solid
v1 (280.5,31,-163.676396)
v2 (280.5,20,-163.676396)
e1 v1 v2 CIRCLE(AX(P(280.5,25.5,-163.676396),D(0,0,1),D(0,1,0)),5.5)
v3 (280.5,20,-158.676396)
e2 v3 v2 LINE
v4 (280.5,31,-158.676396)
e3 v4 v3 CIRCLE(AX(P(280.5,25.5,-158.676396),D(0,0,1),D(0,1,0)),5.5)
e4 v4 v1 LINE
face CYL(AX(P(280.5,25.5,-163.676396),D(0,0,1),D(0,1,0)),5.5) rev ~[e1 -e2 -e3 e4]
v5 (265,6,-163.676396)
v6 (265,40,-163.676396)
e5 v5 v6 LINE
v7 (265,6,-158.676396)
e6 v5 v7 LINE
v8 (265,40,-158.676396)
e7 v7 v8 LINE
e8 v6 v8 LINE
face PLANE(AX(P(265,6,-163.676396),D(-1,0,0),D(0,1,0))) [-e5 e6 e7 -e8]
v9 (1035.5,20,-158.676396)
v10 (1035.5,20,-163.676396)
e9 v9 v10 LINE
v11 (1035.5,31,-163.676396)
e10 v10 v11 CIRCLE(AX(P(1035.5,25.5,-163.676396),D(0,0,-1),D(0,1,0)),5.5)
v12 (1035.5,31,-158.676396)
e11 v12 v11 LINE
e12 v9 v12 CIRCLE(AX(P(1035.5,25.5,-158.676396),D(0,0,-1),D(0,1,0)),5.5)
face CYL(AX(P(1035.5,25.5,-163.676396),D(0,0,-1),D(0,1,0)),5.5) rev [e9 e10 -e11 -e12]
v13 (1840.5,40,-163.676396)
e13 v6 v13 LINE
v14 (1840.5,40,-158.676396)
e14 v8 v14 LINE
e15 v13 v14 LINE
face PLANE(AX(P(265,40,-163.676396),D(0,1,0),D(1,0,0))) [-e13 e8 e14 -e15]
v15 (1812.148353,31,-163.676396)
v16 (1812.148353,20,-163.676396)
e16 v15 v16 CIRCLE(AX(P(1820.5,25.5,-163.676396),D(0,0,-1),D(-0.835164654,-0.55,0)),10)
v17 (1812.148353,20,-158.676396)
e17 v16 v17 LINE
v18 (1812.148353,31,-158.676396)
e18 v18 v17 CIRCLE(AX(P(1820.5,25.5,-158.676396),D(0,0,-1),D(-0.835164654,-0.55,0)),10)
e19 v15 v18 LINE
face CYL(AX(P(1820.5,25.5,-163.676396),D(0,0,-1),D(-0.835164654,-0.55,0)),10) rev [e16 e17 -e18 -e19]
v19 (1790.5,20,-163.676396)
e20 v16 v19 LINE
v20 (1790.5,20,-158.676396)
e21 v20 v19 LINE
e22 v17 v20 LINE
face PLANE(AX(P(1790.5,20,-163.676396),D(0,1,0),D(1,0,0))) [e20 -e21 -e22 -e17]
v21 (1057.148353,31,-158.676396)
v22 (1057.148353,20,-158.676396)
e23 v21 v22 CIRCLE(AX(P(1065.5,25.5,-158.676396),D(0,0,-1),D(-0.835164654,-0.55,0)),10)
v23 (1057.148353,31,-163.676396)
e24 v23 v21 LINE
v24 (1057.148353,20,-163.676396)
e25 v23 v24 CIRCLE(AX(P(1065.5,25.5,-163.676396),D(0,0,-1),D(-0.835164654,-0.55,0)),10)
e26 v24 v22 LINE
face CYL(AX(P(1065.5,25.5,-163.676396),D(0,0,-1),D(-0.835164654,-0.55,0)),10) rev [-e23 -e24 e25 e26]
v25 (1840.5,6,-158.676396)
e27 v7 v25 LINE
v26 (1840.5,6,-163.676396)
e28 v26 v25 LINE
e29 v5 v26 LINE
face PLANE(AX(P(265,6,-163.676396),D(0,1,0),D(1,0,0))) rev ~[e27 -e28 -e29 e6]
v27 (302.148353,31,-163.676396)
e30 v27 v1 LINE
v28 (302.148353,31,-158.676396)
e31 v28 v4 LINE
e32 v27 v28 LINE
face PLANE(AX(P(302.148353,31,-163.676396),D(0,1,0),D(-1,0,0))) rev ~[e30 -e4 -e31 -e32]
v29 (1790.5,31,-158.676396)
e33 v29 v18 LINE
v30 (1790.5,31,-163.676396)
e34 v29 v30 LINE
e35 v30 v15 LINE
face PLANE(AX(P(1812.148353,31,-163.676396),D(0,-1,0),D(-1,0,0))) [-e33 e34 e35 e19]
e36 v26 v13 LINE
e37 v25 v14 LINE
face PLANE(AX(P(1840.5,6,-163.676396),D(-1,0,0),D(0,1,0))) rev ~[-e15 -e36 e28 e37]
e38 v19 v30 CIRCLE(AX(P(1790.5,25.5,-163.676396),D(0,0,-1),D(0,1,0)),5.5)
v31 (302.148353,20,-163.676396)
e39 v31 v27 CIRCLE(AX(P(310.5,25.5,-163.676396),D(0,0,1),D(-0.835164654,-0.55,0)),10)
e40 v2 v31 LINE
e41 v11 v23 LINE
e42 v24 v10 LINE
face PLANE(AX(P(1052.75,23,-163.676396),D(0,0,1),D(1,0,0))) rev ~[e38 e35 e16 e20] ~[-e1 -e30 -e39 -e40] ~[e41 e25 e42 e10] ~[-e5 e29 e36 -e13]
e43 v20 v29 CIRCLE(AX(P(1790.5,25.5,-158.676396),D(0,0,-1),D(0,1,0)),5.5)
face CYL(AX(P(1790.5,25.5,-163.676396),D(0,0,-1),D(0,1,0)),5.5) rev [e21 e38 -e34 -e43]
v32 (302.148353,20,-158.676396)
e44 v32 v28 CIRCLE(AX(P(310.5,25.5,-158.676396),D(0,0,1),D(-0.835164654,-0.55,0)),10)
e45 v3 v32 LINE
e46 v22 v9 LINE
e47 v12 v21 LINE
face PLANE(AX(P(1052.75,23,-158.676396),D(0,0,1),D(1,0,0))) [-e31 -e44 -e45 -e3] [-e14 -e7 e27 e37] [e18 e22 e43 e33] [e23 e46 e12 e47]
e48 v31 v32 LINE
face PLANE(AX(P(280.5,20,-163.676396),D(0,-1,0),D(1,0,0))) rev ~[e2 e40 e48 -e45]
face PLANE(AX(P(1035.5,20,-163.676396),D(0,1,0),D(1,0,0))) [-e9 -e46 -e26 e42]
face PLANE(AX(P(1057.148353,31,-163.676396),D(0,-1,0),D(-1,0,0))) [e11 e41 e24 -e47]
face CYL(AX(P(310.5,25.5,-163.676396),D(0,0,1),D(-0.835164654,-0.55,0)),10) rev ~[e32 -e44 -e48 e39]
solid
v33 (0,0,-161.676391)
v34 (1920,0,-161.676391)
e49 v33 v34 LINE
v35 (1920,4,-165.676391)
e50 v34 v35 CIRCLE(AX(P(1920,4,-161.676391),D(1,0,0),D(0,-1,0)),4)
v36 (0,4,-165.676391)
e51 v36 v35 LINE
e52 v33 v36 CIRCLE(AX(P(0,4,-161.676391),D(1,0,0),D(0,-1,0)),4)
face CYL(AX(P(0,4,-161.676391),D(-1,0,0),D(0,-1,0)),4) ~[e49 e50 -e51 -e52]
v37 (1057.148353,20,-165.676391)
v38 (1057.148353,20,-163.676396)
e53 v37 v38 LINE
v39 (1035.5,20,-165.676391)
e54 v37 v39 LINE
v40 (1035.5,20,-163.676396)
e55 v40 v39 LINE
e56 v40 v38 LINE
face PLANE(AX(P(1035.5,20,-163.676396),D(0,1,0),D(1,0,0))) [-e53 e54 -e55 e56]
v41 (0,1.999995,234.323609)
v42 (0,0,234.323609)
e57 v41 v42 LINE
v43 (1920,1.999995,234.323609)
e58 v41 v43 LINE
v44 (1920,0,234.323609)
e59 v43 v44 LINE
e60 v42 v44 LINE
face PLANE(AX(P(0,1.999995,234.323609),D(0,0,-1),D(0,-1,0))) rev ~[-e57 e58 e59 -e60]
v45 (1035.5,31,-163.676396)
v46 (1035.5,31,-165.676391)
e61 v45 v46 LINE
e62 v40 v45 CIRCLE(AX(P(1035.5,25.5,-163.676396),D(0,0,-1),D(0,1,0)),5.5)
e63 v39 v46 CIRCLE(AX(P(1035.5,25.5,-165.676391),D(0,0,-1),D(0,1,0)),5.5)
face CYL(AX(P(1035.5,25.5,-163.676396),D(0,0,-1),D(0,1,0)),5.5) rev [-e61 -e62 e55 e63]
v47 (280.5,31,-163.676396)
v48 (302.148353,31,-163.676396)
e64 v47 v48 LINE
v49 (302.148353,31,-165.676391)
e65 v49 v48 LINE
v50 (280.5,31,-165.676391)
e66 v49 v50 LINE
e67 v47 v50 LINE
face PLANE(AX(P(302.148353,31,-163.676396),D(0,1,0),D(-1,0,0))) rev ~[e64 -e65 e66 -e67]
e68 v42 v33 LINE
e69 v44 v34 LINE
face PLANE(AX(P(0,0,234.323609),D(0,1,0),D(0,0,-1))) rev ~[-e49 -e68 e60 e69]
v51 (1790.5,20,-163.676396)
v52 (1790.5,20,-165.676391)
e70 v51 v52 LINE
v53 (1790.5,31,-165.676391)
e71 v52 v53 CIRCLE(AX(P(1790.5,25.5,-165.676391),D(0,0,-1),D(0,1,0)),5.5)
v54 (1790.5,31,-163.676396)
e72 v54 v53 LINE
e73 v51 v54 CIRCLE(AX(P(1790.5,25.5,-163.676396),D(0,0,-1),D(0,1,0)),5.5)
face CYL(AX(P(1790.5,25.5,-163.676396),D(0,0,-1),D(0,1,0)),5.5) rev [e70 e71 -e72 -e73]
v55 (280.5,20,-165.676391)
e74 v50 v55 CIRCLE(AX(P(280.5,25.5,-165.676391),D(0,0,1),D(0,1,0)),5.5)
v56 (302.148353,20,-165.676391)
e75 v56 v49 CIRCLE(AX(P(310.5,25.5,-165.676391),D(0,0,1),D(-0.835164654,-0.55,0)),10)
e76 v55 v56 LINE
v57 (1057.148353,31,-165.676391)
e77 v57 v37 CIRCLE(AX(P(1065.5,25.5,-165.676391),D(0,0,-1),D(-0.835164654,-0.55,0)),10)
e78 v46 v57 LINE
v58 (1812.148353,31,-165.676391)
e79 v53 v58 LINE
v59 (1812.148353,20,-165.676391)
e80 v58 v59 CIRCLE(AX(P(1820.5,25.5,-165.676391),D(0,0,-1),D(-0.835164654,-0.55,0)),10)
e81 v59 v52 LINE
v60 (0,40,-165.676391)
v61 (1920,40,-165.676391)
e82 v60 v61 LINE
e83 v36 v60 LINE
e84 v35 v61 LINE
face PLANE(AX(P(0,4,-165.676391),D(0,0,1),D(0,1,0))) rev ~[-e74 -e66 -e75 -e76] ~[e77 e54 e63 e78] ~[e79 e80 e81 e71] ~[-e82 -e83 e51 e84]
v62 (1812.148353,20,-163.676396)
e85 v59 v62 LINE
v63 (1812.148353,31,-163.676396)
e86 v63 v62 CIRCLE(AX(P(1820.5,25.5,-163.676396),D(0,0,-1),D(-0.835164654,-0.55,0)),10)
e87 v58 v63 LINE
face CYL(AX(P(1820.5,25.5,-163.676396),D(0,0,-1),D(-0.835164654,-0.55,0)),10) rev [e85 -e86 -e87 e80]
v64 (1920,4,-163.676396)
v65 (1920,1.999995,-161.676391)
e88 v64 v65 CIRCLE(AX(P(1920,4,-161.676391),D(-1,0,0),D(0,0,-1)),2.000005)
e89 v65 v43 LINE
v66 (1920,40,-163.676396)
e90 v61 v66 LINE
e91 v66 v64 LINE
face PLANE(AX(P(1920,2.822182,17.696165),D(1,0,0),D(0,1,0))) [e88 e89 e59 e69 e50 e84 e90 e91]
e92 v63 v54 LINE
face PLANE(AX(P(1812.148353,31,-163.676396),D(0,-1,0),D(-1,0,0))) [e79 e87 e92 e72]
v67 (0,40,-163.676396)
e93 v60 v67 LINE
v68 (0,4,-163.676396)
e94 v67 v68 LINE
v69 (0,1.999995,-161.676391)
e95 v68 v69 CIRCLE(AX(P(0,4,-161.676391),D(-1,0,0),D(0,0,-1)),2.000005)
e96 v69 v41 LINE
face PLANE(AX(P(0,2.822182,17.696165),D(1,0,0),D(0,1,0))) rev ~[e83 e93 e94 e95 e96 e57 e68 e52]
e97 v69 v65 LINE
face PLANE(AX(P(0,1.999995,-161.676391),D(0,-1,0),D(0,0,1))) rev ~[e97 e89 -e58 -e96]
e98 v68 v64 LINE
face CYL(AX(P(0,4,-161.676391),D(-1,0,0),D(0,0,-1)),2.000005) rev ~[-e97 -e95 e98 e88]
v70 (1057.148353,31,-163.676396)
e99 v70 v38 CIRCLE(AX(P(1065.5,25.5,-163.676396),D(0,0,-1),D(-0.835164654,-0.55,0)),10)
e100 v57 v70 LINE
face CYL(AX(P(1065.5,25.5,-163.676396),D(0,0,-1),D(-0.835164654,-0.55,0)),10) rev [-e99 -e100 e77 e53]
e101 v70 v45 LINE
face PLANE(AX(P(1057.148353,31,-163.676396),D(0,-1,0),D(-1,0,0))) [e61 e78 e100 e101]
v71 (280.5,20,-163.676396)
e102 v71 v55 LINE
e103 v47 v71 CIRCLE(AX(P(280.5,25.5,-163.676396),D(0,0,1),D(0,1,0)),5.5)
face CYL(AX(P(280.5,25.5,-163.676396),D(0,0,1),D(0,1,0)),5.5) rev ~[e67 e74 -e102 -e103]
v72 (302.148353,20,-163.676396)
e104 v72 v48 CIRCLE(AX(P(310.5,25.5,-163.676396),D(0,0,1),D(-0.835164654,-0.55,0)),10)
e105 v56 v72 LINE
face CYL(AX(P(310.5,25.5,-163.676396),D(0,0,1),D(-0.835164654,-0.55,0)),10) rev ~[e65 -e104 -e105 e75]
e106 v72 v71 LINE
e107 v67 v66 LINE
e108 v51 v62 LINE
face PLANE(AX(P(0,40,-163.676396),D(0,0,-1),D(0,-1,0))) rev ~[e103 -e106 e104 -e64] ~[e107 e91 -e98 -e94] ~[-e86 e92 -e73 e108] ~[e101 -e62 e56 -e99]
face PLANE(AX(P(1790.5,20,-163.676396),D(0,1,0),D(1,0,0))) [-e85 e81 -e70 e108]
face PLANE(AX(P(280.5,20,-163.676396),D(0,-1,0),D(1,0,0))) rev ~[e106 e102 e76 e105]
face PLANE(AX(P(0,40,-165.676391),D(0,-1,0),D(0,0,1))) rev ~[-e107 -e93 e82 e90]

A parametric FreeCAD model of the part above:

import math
import FreeCAD as App
import Part
import Sketcher

doc = App.newDocument("Part")
body = doc.addObject("PartDesign::Body", "Body")

# Sketch on YZ plane
sketch1 = body.newObject("Sketcher::SketchObject", "Sketch")
sketch1.AttachmentSupport = (doc.getObject("YZ_Plane"), [""])
sketch1.MapMode = "FlatFace"
sketch1.addGeometry([
    Part.LineSegment(App.Vector(2, 234.3, 0), App.Vector(0, 234.3, 0)),  # 0
    Part.LineSegment(App.Vector(0, 234.3, 0), App.Vector(0, -161.7, 0)),  # 1
    Part.ArcOfCircle(Part.Circle(App.Vector(4, -161.7, 0), App.Vector(0, 0, 1), 4), math.radians(180), math.radians(270)),  # 2
    Part.LineSegment(App.Vector(4, -165.7, 0), App.Vector(40, -165.7, 0)),  # 3
    Part.LineSegment(App.Vector(40, -165.7, 0), App.Vector(40, -163.7, 0)),  # 4
    Part.LineSegment(App.Vector(40, -163.7, 0), App.Vector(4, -163.7, 0)),  # 5
    Part.ArcOfCircle(Part.Circle(App.Vector(4, -161.7, 0), App.Vector(0, 0, 1), 2), math.radians(180), math.radians(270)),  # 6
    Part.LineSegment(App.Vector(2, -161.7, 0), App.Vector(2, 234.3, 0)),  # 7
], False)
sketch1.addConstraint([
    Sketcher.Constraint("Coincident", 0, 2, 1, 1),
    Sketcher.Constraint("Tangent", 1, 2, 2, 1),
    Sketcher.Constraint("Tangent", 2, 2, 3, 1),
    Sketcher.Constraint("Coincident", 3, 2, 4, 1),
    Sketcher.Constraint("Coincident", 4, 2, 5, 1),
    Sketcher.Constraint("Tangent", 5, 2, 6, 2),
    Sketcher.Constraint("Tangent", 6, 1, 7, 1),
    Sketcher.Constraint("Coincident", 7, 2, 0, 1),
    Sketcher.Constraint("Horizontal", 0),
    Sketcher.Constraint("Vertical", 1),
    Sketcher.Constraint("Horizontal", 3),
    Sketcher.Constraint("Vertical", 4),
    Sketcher.Constraint("Horizontal", 5),
    Sketcher.Constraint("Vertical", 7),
    Sketcher.Constraint("Coincident", 6, 3, 2, 3),
    Sketcher.Constraint("PointOnObject", 0, 2, -2),
    Sketcher.Constraint("Radius", 2, 4.0),
    Sketcher.Constraint("DistanceX", 3, 1, 3, 2, 36.0),
    Sketcher.Constraint("DistanceY", 1, 2, 1, 1, 396.0),
    Sketcher.Constraint("Radius", 6, 2.000005),
    Sketcher.Constraint("DistanceY", 2, 3, -1, 1, 161.676391),
])
pad1 = body.newObject("PartDesign::Pad", "Pad")
pad1.Profile = sketch1
pad1.Length = 1920
body2 = doc.addObject("PartDesign::Body", "Body001")

# Sketch on XY plane
sketch2 = body2.newObject("Sketcher::SketchObject", "Sketch001")
sketch2.AttachmentSupport = (doc.getObject("XY_Plane001"), [""])
sketch2.MapMode = "FlatFace"
sketch2.AttachmentOffset = App.Placement(App.Vector(0, 0, -163.676396), App.Rotation())
sketch2.addGeometry([
    Part.LineSegment(App.Vector(265, 40, 0), App.Vector(265, 6, 0)),
    Part.LineSegment(App.Vector(265, 6, 0), App.Vector(1840, 6, 0)),
    Part.LineSegment(App.Vector(1840, 6, 0), App.Vector(1840, 40, 0)),
    Part.LineSegment(App.Vector(1840, 40, 0), App.Vector(265, 40, 0)),
], False)
sketch2.addConstraint([
    Sketcher.Constraint("Coincident", 0, 2, 1, 1),
    Sketcher.Constraint("Coincident", 1, 2, 2, 1),
    Sketcher.Constraint("Coincident", 2, 2, 3, 1),
    Sketcher.Constraint("Coincident", 3, 2, 0, 1),
    Sketcher.Constraint("Vertical", 0),
    Sketcher.Constraint("Horizontal", 1),
    Sketcher.Constraint("Vertical", 2),
    Sketcher.Constraint("Horizontal", 3),
    Sketcher.Constraint("DistanceY", 0, 2, 0, 1, 34.0),
    Sketcher.Constraint("DistanceX", 1, 1, 1, 2, 1575.5),
    Sketcher.Constraint("DistanceX", -1, 1, 0, 2, 265.0),
    Sketcher.Constraint("DistanceY", -1, 1, 0, 2, 6.0),
])
pad2 = body2.newObject("PartDesign::Pad", "Pad001")
pad2.Profile = sketch2
pad2.Length = 5
body3 = doc.addObject("PartDesign::Body", "Body002")
body3.AllowCompound = True

# Sketch on XY plane
sketch3 = body3.newObject("Sketcher::SketchObject", "Sketch002")
sketch3.AttachmentSupport = (doc.getObject("XY_Plane002"), [""])
sketch3.MapMode = "FlatFace"
sketch3.AttachmentOffset = App.Placement(App.Vector(0, 0, -163.676396), App.Rotation())
sketch3.addGeometry([
    Part.LineSegment(App.Vector(1790, 20, 0), App.Vector(1812, 20, 0)),  # 0
    Part.ArcOfCircle(Part.Circle(App.Vector(1820, 26, 0), App.Vector(0, 0, 1), 10), math.radians(-147), math.radians(147)),  # 1
    Part.LineSegment(App.Vector(1812, 31, 0), App.Vector(1790, 31, 0)),  # 2
    Part.ArcOfCircle(Part.Circle(App.Vector(1790, 26, 0), App.Vector(0, 0, 1), 6), math.radians(90), math.radians(270)),  # 3
    Part.LineSegment(App.Vector(1036, 20, 0), App.Vector(1057, 20, 0)),  # 4
    Part.ArcOfCircle(Part.Circle(App.Vector(1066, 26, 0), App.Vector(0, 0, 1), 10), math.radians(-147), math.radians(147)),  # 5
    Part.LineSegment(App.Vector(1057, 31, 0), App.Vector(1036, 31, 0)),  # 6
    Part.ArcOfCircle(Part.Circle(App.Vector(1036, 26, 0), App.Vector(0, 0, 1), 6), math.radians(90), math.radians(270)),  # 7
    Part.LineSegment(App.Vector(280, 20, 0), App.Vector(302, 20, 0)),  # 8
    Part.ArcOfCircle(Part.Circle(App.Vector(310, 26, 0), App.Vector(0, 0, 1), 10), math.radians(-147), math.radians(147)),  # 9
    Part.LineSegment(App.Vector(302, 31, 0), App.Vector(280, 31, 0)),  # 10
    Part.ArcOfCircle(Part.Circle(App.Vector(280, 26, 0), App.Vector(0, 0, 1), 6), math.radians(90), math.radians(270)),  # 11
], False)
sketch3.addConstraint([
    Sketcher.Constraint("Coincident", 0, 2, 1, 1),
    Sketcher.Constraint("Coincident", 1, 2, 2, 1),
    Sketcher.Constraint("Tangent", 2, 2, 3, 1),
    Sketcher.Constraint("Tangent", 3, 2, 0, 1),
    Sketcher.Constraint("Coincident", 4, 2, 5, 1),
    Sketcher.Constraint("Coincident", 5, 2, 6, 1),
    Sketcher.Constraint("Tangent", 6, 2, 7, 1),
    Sketcher.Constraint("Tangent", 7, 2, 4, 1),
    Sketcher.Constraint("Coincident", 8, 2, 9, 1),
    Sketcher.Constraint("Coincident", 9, 2, 10, 1),
    Sketcher.Constraint("Tangent", 10, 2, 11, 1),
    Sketcher.Constraint("Tangent", 11, 2, 8, 1),
    Sketcher.Constraint("Horizontal", 0),
    Sketcher.Constraint("Horizontal", 2),
    Sketcher.Constraint("Horizontal", 4),
    Sketcher.Constraint("Horizontal", 6),
    Sketcher.Constraint("Horizontal", 8),
    Sketcher.Constraint("Horizontal", 10),
    Sketcher.Constraint("Equal", 1, 5),
    Sketcher.Constraint("Equal", 3, 7),
    Sketcher.Constraint("Equal", 5, 9),
    Sketcher.Constraint("Equal", 7, 11),
    Sketcher.Constraint("Horizontal", 1, 3, 3, 3),
    Sketcher.Constraint("Horizontal", 3, 3, 5, 3),
    Sketcher.Constraint("Horizontal", 5, 3, 7, 3),
    Sketcher.Constraint("Horizontal", 7, 3, 9, 3),
    Sketcher.Constraint("Horizontal", 9, 3, 11, 3),
    Sketcher.Constraint("Equal", 2, 4),
    Sketcher.Constraint("Equal", 6, 8),
    Sketcher.Constraint("Radius", 1, 10.0),
    Sketcher.Constraint("Radius", 3, 5.5),
    Sketcher.Constraint("DistanceY", -1, 1, 0, 2, 20.0),
    Sketcher.Constraint("DistanceX", 3, 3, 1, 3, 30.0),
    Sketcher.Constraint("DistanceX", 5, 3, 3, 3, 725.0),
    Sketcher.Constraint("DistanceX", 9, 3, 7, 3, 725.0),
    Sketcher.Constraint("DistanceX", -1, 1, 1, 3, 1820.5),
])
pad3 = body3.newObject("PartDesign::Pad", "Pad002")
pad3.Profile = sketch3
pad3.Length = 25
pad3.Midplane = True
doc.recompute()

body4 = doc.addObject("PartDesign::Body", "Body003")
body4.BaseFeature = body3
boolean = body.newObject("PartDesign::Boolean", "Boolean")
boolean.Type = "Cut"
boolean.addObjects([body4])
doc.recompute()

# Sketch on XY plane
sketch4 = body.newObject("Sketcher::SketchObject", "Sketch003")
sketch4.AttachmentSupport = (doc.getObject("XY_Plane"), [""])
sketch4.MapMode = "FlatFace"
sketch4.AttachmentOffset = App.Placement(App.Vector(0, 0, -163.676396), App.Rotation())
sketch4.addGeometry([
    Part.LineSegment(App.Vector(1790, 20, 0), App.Vector(1812, 20, 0)),  # 0
    Part.ArcOfCircle(Part.Circle(App.Vector(1820, 26, 0), App.Vector(0, 0, 1), 10), math.radians(-147), math.radians(147)),  # 1
    Part.LineSegment(App.Vector(1812, 31, 0), App.Vector(1790, 31, 0)),  # 2
    Part.ArcOfCircle(Part.Circle(App.Vector(1790, 26, 0), App.Vector(0, 0, 1), 6), math.radians(90), math.radians(270)),  # 3
    Part.LineSegment(App.Vector(1036, 20, 0), App.Vector(1057, 20, 0)),  # 4
    Part.ArcOfCircle(Part.Circle(App.Vector(1066, 26, 0), App.Vector(0, 0, 1), 10), math.radians(-147), math.radians(147)),  # 5
    Part.LineSegment(App.Vector(1057, 31, 0), App.Vector(1036, 31, 0)),  # 6
    Part.ArcOfCircle(Part.Circle(App.Vector(1036, 26, 0), App.Vector(0, 0, 1), 6), math.radians(90), math.radians(270)),  # 7
    Part.LineSegment(App.Vector(280, 20, 0), App.Vector(302, 20, 0)),  # 8
    Part.ArcOfCircle(Part.Circle(App.Vector(310, 26, 0), App.Vector(0, 0, 1), 10), math.radians(-147), math.radians(147)),  # 9
    Part.LineSegment(App.Vector(302, 31, 0), App.Vector(280, 31, 0)),  # 10
    Part.ArcOfCircle(Part.Circle(App.Vector(280, 26, 0), App.Vector(0, 0, 1), 6), math.radians(90), math.radians(270)),  # 11
], False)
sketch4.addConstraint([
    Sketcher.Constraint("Coincident", 0, 2, 1, 1),
    Sketcher.Constraint("Coincident", 1, 2, 2, 1),
    Sketcher.Constraint("Tangent", 2, 2, 3, 1),
    Sketcher.Constraint("Tangent", 3, 2, 0, 1),
    Sketcher.Constraint("Coincident", 4, 2, 5, 1),
    Sketcher.Constraint("Coincident", 5, 2, 6, 1),
    Sketcher.Constraint("Tangent", 6, 2, 7, 1),
    Sketcher.Constraint("Tangent", 7, 2, 4, 1),
    Sketcher.Constraint("Coincident", 8, 2, 9, 1),
    Sketcher.Constraint("Coincident", 9, 2, 10, 1),
    Sketcher.Constraint("Tangent", 10, 2, 11, 1),
    Sketcher.Constraint("Tangent", 11, 2, 8, 1),
    Sketcher.Constraint("Horizontal", 0),
    Sketcher.Constraint("Horizontal", 2),
    Sketcher.Constraint("Horizontal", 4),
    Sketcher.Constraint("Horizontal", 6),
    Sketcher.Constraint("Horizontal", 8),
    Sketcher.Constraint("Horizontal", 10),
    Sketcher.Constraint("Equal", 1, 5),
    Sketcher.Constraint("Equal", 3, 7),
    Sketcher.Constraint("Equal", 5, 9),
    Sketcher.Constraint("Equal", 7, 11),
    Sketcher.Constraint("Horizontal", 1, 3, 3, 3),
    Sketcher.Constraint("Horizontal", 3, 3, 5, 3),
    Sketcher.Constraint("Horizontal", 5, 3, 7, 3),
    Sketcher.Constraint("Horizontal", 7, 3, 9, 3),
    Sketcher.Constraint("Horizontal", 9, 3, 11, 3),
    Sketcher.Constraint("Equal", 2, 4),
    Sketcher.Constraint("Equal", 6, 8),
    Sketcher.Constraint("Radius", 1, 10.0),
    Sketcher.Constraint("Radius", 3, 5.5),
    Sketcher.Constraint("DistanceY", -1, 1, 0, 2, 20.0),
    Sketcher.Constraint("DistanceX", 3, 3, 1, 3, 30.0),
    Sketcher.Constraint("DistanceX", 5, 3, 3, 3, 725.0),
    Sketcher.Constraint("DistanceX", 9, 3, 7, 3, 725.0),
    Sketcher.Constraint("DistanceX", -1, 1, 1, 3, 1820.5),
])
pocket1 = body.newObject("PartDesign::Pocket", "Pocket")
pocket1.Profile = sketch4
pocket1.Length = 25
pocket1.Midplane = True
doc.recompute()

boolean2 = body2.newObject("PartDesign::Boolean", "Boolean001")
boolean2.Type = "Cut"
boolean2.addObjects([body3])

doc.recompute()
